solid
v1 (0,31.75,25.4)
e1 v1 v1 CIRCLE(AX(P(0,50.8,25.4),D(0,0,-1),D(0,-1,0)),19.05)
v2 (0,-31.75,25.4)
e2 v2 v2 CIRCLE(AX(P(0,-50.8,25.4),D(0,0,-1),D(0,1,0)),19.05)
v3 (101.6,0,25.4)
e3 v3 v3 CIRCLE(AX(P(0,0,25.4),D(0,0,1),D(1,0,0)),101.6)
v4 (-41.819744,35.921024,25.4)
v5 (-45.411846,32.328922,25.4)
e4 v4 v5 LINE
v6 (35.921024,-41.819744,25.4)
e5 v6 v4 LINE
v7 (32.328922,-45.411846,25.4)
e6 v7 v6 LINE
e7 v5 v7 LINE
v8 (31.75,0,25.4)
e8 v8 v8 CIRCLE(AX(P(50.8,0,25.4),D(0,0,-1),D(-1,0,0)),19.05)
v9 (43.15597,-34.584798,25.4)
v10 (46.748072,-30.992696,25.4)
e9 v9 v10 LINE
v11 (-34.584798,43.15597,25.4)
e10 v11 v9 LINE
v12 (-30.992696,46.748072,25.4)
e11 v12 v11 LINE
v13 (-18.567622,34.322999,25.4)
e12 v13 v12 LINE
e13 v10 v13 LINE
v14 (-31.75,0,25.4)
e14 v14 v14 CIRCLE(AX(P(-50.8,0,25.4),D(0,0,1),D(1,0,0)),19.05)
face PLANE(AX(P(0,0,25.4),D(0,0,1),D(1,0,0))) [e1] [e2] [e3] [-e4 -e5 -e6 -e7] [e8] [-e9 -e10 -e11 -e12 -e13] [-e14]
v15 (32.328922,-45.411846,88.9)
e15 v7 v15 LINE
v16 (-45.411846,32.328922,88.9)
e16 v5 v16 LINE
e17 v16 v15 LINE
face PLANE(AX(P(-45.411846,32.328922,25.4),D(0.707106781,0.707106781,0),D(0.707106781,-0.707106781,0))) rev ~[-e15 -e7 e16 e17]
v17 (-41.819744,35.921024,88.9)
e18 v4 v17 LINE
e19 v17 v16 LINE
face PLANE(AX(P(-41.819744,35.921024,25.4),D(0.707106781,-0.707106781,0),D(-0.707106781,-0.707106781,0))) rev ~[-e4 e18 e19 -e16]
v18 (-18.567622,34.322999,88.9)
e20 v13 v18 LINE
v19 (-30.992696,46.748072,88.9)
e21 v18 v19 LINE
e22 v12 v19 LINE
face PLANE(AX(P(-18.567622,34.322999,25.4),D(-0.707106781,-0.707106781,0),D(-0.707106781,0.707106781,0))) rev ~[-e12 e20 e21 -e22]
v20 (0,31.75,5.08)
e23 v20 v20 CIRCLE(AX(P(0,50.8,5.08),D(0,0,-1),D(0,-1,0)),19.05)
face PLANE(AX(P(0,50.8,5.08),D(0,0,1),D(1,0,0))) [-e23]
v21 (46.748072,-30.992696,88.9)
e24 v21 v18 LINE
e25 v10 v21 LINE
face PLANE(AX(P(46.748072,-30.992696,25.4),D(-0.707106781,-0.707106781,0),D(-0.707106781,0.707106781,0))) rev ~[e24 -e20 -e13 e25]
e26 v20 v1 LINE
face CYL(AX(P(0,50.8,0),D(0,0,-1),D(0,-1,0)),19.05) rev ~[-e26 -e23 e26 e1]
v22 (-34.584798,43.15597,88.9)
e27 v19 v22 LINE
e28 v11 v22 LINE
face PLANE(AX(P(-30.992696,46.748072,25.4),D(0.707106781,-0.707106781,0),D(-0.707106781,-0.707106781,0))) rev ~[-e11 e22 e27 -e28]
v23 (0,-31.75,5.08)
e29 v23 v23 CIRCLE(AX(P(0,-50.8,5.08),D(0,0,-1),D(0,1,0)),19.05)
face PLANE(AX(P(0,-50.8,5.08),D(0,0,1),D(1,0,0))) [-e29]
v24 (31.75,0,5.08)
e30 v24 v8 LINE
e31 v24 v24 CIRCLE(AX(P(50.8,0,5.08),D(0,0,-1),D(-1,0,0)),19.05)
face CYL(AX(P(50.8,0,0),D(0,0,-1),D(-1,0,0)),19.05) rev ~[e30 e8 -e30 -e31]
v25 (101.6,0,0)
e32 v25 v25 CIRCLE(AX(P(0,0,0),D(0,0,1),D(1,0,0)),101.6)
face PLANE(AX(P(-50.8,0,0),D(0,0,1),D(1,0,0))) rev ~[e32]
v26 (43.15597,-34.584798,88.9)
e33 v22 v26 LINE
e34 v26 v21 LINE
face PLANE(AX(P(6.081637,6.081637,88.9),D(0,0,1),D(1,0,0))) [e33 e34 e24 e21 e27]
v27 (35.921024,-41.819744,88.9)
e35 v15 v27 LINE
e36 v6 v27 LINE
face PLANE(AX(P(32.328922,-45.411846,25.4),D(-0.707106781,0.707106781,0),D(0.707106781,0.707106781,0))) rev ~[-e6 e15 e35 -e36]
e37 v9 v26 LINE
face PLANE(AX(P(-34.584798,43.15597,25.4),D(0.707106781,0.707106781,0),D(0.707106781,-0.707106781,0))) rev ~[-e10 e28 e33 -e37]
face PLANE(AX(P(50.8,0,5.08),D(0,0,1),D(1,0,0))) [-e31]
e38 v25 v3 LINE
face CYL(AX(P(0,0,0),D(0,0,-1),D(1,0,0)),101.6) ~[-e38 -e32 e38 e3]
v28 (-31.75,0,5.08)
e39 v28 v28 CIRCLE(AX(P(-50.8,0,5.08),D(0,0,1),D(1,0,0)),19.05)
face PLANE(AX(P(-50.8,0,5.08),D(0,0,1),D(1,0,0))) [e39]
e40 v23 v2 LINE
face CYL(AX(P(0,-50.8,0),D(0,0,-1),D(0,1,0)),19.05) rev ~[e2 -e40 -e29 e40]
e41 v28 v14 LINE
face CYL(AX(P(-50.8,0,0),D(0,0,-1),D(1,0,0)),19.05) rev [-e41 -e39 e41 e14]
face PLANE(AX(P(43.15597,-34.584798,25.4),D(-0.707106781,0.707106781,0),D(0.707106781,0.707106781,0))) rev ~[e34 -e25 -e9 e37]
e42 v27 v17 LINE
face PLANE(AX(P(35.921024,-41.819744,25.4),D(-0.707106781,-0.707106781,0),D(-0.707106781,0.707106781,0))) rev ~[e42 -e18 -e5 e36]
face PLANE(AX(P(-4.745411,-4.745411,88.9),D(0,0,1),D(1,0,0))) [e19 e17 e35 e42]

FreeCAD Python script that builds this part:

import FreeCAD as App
import Part
import Sketcher

V = App.Vector
Q = App.Units.Quantity


def add_polygon(sketch, points):
    """Adds a closed chain of lines whose ends are joined by coincident constraints."""
    first, n = sketch.GeometryCount, len(points)
    for a, b in zip(points, points[1:] + points[:1]):
        sketch.addGeometry(Part.LineSegment(App.Vector(*a, 0), App.Vector(*b, 0)), False)
    for i in range(n):
        sketch.addConstraint(Sketcher.Constraint("Coincident", first + i, 2, first + (i + 1) % n, 1))

doc = App.newDocument("Part")
body = doc.addObject("PartDesign::Body", "Body")

# Sketch on XY plane
sketch1 = body.newObject("Sketcher::SketchObject", "Sketch")
sketch1.AttachmentSupport = (doc.getObject("XY_Plane"), [""])
sketch1.MapMode = "FlatFace"
sketch1.addGeometry(Part.Circle(V(0, 0, 0), V(0, 0, 1), 101.6), False)
sketch1.addGeometry(Part.Circle(V(0, -50.8, 0), V(0, 0, 1), 19.05), False)
sketch1.addGeometry(Part.Circle(V(-50.8, 0, 0), V(0, 0, 1), 19.05), False)
sketch1.addGeometry(Part.Circle(V(50.8, 0, 0), V(0, 0, 1), 19.05), False)
sketch1.addGeometry(Part.Circle(V(0, 50.8, 0), V(0, 0, 1), 19.05), False)
sketch1.addConstraint(Sketcher.Constraint("Coincident", 0, 3, -1, 1))
sketch1.addConstraint(Sketcher.Constraint("Equal", 1, 2))
sketch1.addConstraint(Sketcher.Constraint("Equal", 2, 3))
sketch1.addConstraint(Sketcher.Constraint("Equal", 3, 4))
sketch1.addConstraint(Sketcher.Constraint("Symmetric", 2, 3, 3, 3, -1, 1))
sketch1.addConstraint(Sketcher.Constraint("Symmetric", 1, 3, 4, 3, -1, 1))
sketch1.addConstraint(Sketcher.Constraint("PointOnObject", 1, 3, -2))
sketch1.addConstraint(Sketcher.Constraint("PointOnObject", 2, 3, -1))
sketch1.addConstraint(Sketcher.Constraint("Diameter", 0, Q("8 in")))
sketch1.addConstraint(Sketcher.Constraint("Diameter", 1, Q("1.5 in")))
sketch1.addConstraint(Sketcher.Constraint("DistanceY", 1, 3, -1, 1, Q("2 in")))
sketch1.addConstraint(Sketcher.Constraint("DistanceX", 2, 3, -1, 1, Q("2 in")))
pad1 = body.newObject("PartDesign::Pad", "Pad")
pad1.Profile = sketch1
pad1.Length = Q("1 in")

# Sketch on XY plane
sketch2 = body.newObject("Sketcher::SketchObject", "Sketch001")
sketch2.AttachmentSupport = (doc.getObject("XY_Plane"), [""])
sketch2.MapMode = "FlatFace"
sketch2.addGeometry(Part.Circle(V(-50.8, 0, 0), V(0, 0, 1), 19.05), False)
sketch2.addGeometry(Part.Circle(V(0, -50.8, 0), V(0, 0, 1), 19.05), False)
sketch2.addGeometry(Part.Circle(V(0, 50.8, 0), V(0, 0, 1), 19.05), False)
sketch2.addGeometry(Part.Circle(V(50.8, 0, 0), V(0, 0, 1), 19.05), False)
sketch2.addConstraint(Sketcher.Constraint("Equal", 0, 1))
sketch2.addConstraint(Sketcher.Constraint("Equal", 1, 2))
sketch2.addConstraint(Sketcher.Constraint("Equal", 2, 3))
sketch2.addConstraint(Sketcher.Constraint("Symmetric", 1, 3, 2, 3, -1, 1))
sketch2.addConstraint(Sketcher.Constraint("Symmetric", 0, 3, 3, 3, -1, 1))
sketch2.addConstraint(Sketcher.Constraint("PointOnObject", 0, 3, -1))
sketch2.addConstraint(Sketcher.Constraint("PointOnObject", 1, 3, -2))
sketch2.addConstraint(Sketcher.Constraint("Diameter", 0, Q("1.5 in")))
sketch2.addConstraint(Sketcher.Constraint("DistanceX", 0, 3, -1, 1, Q("2 in")))
sketch2.addConstraint(Sketcher.Constraint("DistanceY", 1, 3, -1, 1, Q("2 in")))
pad2 = body.newObject("PartDesign::Pad", "Pad001")
pad2.Profile = sketch2
pad2.Length = Q("0.2 in")

# Sketch on XY plane
sketch3 = body.newObject("Sketcher::SketchObject", "Sketch002")
sketch3.AttachmentSupport = (doc.getObject("XY_Plane"), [""])
sketch3.MapMode = "FlatFace"
sketch3.AttachmentOffset = App.Placement(V(0, 0, 1 * 25.4), App.Rotation())
add_polygon(sketch3, [(-45.411846, 32.328922), (32.328922, -45.411846), (35.921024, -41.819744), (-41.819744, 35.921024)])  # lines 0-3
add_polygon(sketch3, [(46.748072, -30.992696), (-18.567622, 34.322999), (-30.992696, 46.748072), (-34.584798, 43.15597), (43.15597, -34.584798)])  # lines 4-8
sketch3.addConstraint(Sketcher.Constraint("Perpendicular", 0, 1))
sketch3.addConstraint(Sketcher.Constraint("Perpendicular", 1, 2))
sketch3.addConstraint(Sketcher.Constraint("Perpendicular", 2, 3))
sketch3.addConstraint(Sketcher.Constraint("Perpendicular", 3, 4))
sketch3.addConstraint(Sketcher.Constraint("Parallel", 4, 5))
sketch3.addConstraint(Sketcher.Constraint("Perpendicular", 5, 6))
sketch3.addConstraint(Sketcher.Constraint("Perpendicular", 6, 7))
sketch3.addConstraint(Sketcher.Constraint("Perpendicular", 7, 8))
sketch3.addConstraint(Sketcher.Constraint("Equal", 3, 6))
sketch3.addConstraint(Sketcher.Constraint("Equal", 2, 7))
sketch3.addConstraint(Sketcher.Constraint("Angle", 0, Q("-45 deg")))
sketch3.addConstraint(Sketcher.Constraint("Distance", 1, Q("0.2 in")))
sketch3.addConstraint(Sketcher.Constraint("DistanceY", -1, 1, 4, 2, 34.322999))
sketch3.addConstraint(Sketcher.Constraint("DistanceX", 6, 2, -1, 1, 34.584798))
sketch3.addConstraint(Sketcher.Constraint("DistanceY", 7, 2, -1, 1, 34.584798))
sketch3.addConstraint(Sketcher.Constraint("Distance", 0, 109.942049))
sketch3.addConstraint(Sketcher.Constraint("DistanceX", 2, 2, 4, 2, 23.252122))
sketch3.addConstraint(Sketcher.Constraint("DistanceY", 3, 2, 5, 2, 14.41915))
pad3 = body.newObject("PartDesign::Pad", "Pad002")
pad3.Profile = sketch3
pad3.Length = Q("2.5 in")

doc.recompute()
